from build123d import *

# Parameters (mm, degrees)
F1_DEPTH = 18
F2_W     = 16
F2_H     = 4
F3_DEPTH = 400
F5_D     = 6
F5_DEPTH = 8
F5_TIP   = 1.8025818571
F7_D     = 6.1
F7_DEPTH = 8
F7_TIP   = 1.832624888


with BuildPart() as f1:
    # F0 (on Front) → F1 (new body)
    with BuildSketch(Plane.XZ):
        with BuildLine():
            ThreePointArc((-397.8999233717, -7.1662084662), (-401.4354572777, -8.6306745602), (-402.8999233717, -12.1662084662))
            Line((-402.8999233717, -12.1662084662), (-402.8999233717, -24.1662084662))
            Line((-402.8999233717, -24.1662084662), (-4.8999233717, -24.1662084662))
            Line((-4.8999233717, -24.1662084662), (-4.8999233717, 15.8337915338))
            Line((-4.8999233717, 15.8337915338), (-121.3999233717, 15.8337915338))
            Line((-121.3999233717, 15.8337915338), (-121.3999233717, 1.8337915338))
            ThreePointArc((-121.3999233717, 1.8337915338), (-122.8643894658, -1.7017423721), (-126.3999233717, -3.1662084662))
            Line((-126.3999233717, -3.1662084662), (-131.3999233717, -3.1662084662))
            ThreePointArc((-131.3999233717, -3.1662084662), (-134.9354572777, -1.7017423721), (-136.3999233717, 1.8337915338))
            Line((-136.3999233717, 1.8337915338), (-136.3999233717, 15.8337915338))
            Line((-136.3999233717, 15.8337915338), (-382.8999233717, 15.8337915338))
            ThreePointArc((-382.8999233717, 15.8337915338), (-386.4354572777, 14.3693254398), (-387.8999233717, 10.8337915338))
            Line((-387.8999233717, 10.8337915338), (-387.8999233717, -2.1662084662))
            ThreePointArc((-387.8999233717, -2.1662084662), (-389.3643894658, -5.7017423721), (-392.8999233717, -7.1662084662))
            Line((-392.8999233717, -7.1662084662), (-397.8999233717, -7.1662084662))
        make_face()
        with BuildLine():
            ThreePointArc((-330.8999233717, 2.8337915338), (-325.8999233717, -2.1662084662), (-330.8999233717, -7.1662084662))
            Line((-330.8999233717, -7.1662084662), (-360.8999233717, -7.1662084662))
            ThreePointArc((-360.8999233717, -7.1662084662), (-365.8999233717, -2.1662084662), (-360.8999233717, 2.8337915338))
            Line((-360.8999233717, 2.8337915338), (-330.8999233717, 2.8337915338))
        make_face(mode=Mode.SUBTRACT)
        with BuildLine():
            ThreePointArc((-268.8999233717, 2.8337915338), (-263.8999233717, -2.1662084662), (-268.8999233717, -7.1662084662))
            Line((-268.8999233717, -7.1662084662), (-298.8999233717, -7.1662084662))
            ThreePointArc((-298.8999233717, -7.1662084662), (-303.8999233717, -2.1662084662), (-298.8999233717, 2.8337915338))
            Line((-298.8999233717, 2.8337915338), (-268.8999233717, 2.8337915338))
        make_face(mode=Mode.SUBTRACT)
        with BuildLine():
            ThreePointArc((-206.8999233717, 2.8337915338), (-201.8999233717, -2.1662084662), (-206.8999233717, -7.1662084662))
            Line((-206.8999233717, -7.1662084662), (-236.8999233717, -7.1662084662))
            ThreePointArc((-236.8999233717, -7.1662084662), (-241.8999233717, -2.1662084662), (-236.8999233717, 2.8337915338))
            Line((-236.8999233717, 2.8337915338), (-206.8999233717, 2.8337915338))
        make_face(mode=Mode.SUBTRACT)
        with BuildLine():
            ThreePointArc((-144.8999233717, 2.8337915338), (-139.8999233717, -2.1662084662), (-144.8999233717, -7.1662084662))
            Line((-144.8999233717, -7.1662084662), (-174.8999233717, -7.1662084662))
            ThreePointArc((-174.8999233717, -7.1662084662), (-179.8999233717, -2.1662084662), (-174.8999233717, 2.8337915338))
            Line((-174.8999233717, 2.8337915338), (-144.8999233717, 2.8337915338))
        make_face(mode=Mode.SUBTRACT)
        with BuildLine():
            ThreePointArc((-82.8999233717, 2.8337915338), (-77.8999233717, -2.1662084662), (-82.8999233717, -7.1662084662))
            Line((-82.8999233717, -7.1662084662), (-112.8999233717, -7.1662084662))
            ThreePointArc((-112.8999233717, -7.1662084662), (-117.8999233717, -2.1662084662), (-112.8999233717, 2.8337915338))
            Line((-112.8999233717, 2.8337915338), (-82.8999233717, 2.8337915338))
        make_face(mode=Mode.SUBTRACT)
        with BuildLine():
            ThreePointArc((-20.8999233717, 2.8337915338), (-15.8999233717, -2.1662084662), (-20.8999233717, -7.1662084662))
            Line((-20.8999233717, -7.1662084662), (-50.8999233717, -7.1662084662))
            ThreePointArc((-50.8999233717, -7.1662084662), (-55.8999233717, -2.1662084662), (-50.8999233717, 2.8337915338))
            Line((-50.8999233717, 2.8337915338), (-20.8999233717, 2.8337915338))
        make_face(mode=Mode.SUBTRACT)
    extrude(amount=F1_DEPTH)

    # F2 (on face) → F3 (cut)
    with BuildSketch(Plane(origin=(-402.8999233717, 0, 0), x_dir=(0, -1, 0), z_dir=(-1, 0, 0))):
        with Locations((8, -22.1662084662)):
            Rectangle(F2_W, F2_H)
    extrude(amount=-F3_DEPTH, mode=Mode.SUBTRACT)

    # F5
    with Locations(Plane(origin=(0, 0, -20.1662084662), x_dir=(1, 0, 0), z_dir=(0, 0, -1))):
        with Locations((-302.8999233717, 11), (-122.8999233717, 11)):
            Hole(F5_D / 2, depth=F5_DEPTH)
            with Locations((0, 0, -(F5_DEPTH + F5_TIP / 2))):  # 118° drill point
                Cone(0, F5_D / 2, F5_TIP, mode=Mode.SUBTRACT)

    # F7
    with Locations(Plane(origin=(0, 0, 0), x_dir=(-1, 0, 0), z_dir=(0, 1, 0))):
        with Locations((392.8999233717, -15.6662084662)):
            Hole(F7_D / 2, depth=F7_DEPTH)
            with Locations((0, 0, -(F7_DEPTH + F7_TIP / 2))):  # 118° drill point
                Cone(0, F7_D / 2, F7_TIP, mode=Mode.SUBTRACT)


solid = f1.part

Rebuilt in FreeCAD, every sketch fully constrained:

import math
import FreeCAD as App
import Part
import Sketcher

doc = App.newDocument("Part")
body = doc.addObject("PartDesign::Body", "Body")

# Sketch on XZ plane
sketch1 = body.newObject("Sketcher::SketchObject", "Sketch")
sketch1.AttachmentSupport = (doc.getObject("XZ_Plane"), [""])
sketch1.MapMode = "FlatFace"
sketch1.addGeometry(Part.ArcOfCircle(Part.Circle(App.Vector(-397.9, -12.2, 0), App.Vector(0, 0, 1), 5), math.radians(90), math.radians(180)), False)
sketch1.addGeometry(Part.LineSegment(App.Vector(-402.9, -12.2, 0), App.Vector(-402.9, -24.2, 0)), False)
sketch1.addGeometry(Part.LineSegment(App.Vector(-402.9, -24.2, 0), App.Vector(-4.9, -24.2, 0)), False)
sketch1.addGeometry(Part.LineSegment(App.Vector(-4.9, -24.2, 0), App.Vector(-4.9, 15.8, 0)), False)
sketch1.addGeometry(Part.LineSegment(App.Vector(-4.9, 15.8, 0), App.Vector(-121.4, 15.8, 0)), False)
sketch1.addGeometry(Part.LineSegment(App.Vector(-121.4, 15.8, 0), App.Vector(-121.4, 1.8, 0)), False)
sketch1.addGeometry(Part.ArcOfCircle(Part.Circle(App.Vector(-126.4, 1.8, 0), App.Vector(0, 0, 1), 5), math.radians(-90), math.radians(0)), False)
sketch1.addGeometry(Part.LineSegment(App.Vector(-126.4, -3.2, 0), App.Vector(-131.4, -3.2, 0)), False)
sketch1.addGeometry(Part.ArcOfCircle(Part.Circle(App.Vector(-131.4, 1.8, 0), App.Vector(0, 0, 1), 5), math.radians(180), math.radians(270)), False)
sketch1.addGeometry(Part.LineSegment(App.Vector(-136.4, 1.8, 0), App.Vector(-136.4, 15.8, 0)), False)
sketch1.addGeometry(Part.LineSegment(App.Vector(-136.4, 15.8, 0), App.Vector(-382.9, 15.8, 0)), False)
sketch1.addGeometry(Part.ArcOfCircle(Part.Circle(App.Vector(-382.9, 10.8, 0), App.Vector(0, 0, 1), 5), math.radians(90), math.radians(180)), False)
sketch1.addGeometry(Part.LineSegment(App.Vector(-387.9, 10.8, 0), App.Vector(-387.9, -2.2, 0)), False)
sketch1.addGeometry(Part.ArcOfCircle(Part.Circle(App.Vector(-392.9, -2.2, 0), App.Vector(0, 0, 1), 5), math.radians(-90), math.radians(0)), False)
sketch1.addGeometry(Part.LineSegment(App.Vector(-392.9, -7.2, 0), App.Vector(-397.9, -7.2, 0)), False)
sketch1.addGeometry(Part.LineSegment(App.Vector(-360.9, 2.8, 0), App.Vector(-330.9, 2.8, 0)), False)
sketch1.addGeometry(Part.ArcOfCircle(Part.Circle(App.Vector(-330.9, -2.2, 0), App.Vector(0, 0, 1), 5), math.radians(-90), math.radians(90)), False)
sketch1.addGeometry(Part.LineSegment(App.Vector(-330.9, -7.2, 0), App.Vector(-360.9, -7.2, 0)), False)
sketch1.addGeometry(Part.ArcOfCircle(Part.Circle(App.Vector(-360.9, -2.2, 0), App.Vector(0, 0, 1), 5), math.radians(90), math.radians(270)), False)
sketch1.addGeometry(Part.LineSegment(App.Vector(-298.9, 2.8, 0), App.Vector(-268.9, 2.8, 0)), False)
sketch1.addGeometry(Part.ArcOfCircle(Part.Circle(App.Vector(-268.9, -2.2, 0), App.Vector(0, 0, 1), 5), math.radians(-90), math.radians(90)), False)
sketch1.addGeometry(Part.LineSegment(App.Vector(-268.9, -7.2, 0), App.Vector(-298.9, -7.2, 0)), False)
sketch1.addGeometry(Part.ArcOfCircle(Part.Circle(App.Vector(-298.9, -2.2, 0), App.Vector(0, 0, 1), 5), math.radians(90), math.radians(270)), False)
sketch1.addGeometry(Part.LineSegment(App.Vector(-236.9, 2.8, 0), App.Vector(-206.9, 2.8, 0)), False)
sketch1.addGeometry(Part.ArcOfCircle(Part.Circle(App.Vector(-206.9, -2.2, 0), App.Vector(0, 0, 1), 5), math.radians(-90), math.radians(90)), False)
sketch1.addGeometry(Part.LineSegment(App.Vector(-206.9, -7.2, 0), App.Vector(-236.9, -7.2, 0)), False)
sketch1.addGeometry(Part.ArcOfCircle(Part.Circle(App.Vector(-236.9, -2.2, 0), App.Vector(0, 0, 1), 5), math.radians(90), math.radians(270)), False)
sketch1.addGeometry(Part.LineSegment(App.Vector(-174.9, 2.8, 0), App.Vector(-144.9, 2.8, 0)), False)
sketch1.addGeometry(Part.ArcOfCircle(Part.Circle(App.Vector(-144.9, -2.2, 0), App.Vector(0, 0, 1), 5), math.radians(-90), math.radians(90)), False)
sketch1.addGeometry(Part.LineSegment(App.Vector(-144.9, -7.2, 0), App.Vector(-174.9, -7.2, 0)), False)
sketch1.addGeometry(Part.ArcOfCircle(Part.Circle(App.Vector(-174.9, -2.2, 0), App.Vector(0, 0, 1), 5), math.radians(90), math.radians(270)), False)
sketch1.addGeometry(Part.LineSegment(App.Vector(-112.9, 2.8, 0), App.Vector(-82.9, 2.8, 0)), False)
sketch1.addGeometry(Part.ArcOfCircle(Part.Circle(App.Vector(-82.9, -2.2, 0), App.Vector(0, 0, 1), 5), math.radians(-90), math.radians(90)), False)
sketch1.addGeometry(Part.LineSegment(App.Vector(-82.9, -7.2, 0), App.Vector(-112.9, -7.2, 0)), False)
sketch1.addGeometry(Part.ArcOfCircle(Part.Circle(App.Vector(-112.9, -2.2, 0), App.Vector(0, 0, 1), 5), math.radians(90), math.radians(270)), False)
sketch1.addGeometry(Part.LineSegment(App.Vector(-50.9, 2.8, 0), App.Vector(-20.9, 2.8, 0)), False)
sketch1.addGeometry(Part.ArcOfCircle(Part.Circle(App.Vector(-20.9, -2.2, 0), App.Vector(0, 0, 1), 5), math.radians(-90), math.radians(90)), False)
sketch1.addGeometry(Part.LineSegment(App.Vector(-20.9, -7.2, 0), App.Vector(-50.9, -7.2, 0)), False)
sketch1.addGeometry(Part.ArcOfCircle(Part.Circle(App.Vector(-50.9, -2.2, 0), App.Vector(0, 0, 1), 5), math.radians(90), math.radians(270)), False)
sketch1.addConstraint(Sketcher.Constraint("Tangent", 0, 2, 1, 1))
sketch1.addConstraint(Sketcher.Constraint("Coincident", 1, 2, 2, 1))
sketch1.addConstraint(Sketcher.Constraint("Coincident", 2, 2, 3, 1))
sketch1.addConstraint(Sketcher.Constraint("Coincident", 3, 2, 4, 1))
sketch1.addConstraint(Sketcher.Constraint("Coincident", 4, 2, 5, 1))
sketch1.addConstraint(Sketcher.Constraint("Tangent", 5, 2, 6, 2))
sketch1.addConstraint(Sketcher.Constraint("Tangent", 6, 1, 7, 1))
sketch1.addConstraint(Sketcher.Constraint("Tangent", 7, 2, 8, 2))
sketch1.addConstraint(Sketcher.Constraint("Tangent", 8, 1, 9, 1))
sketch1.addConstraint(Sketcher.Constraint("Coincident", 9, 2, 10, 1))
sketch1.addConstraint(Sketcher.Constraint("Tangent", 10, 2, 11, 1))
sketch1.addConstraint(Sketcher.Constraint("Tangent", 11, 2, 12, 1))
sketch1.addConstraint(Sketcher.Constraint("Tangent", 12, 2, 13, 2))
sketch1.addConstraint(Sketcher.Constraint("Tangent", 13, 1, 14, 1))
sketch1.addConstraint(Sketcher.Constraint("Tangent", 14, 2, 0, 1))
sketch1.addConstraint(Sketcher.Constraint("Tangent", 15, 2, 16, 2))
sketch1.addConstraint(Sketcher.Constraint("Tangent", 16, 1, 17, 1))
sketch1.addConstraint(Sketcher.Constraint("Tangent", 17, 2, 18, 2))
sketch1.addConstraint(Sketcher.Constraint("Tangent", 18, 1, 15, 1))
sketch1.addConstraint(Sketcher.Constraint("Tangent", 19, 2, 20, 2))
sketch1.addConstraint(Sketcher.Constraint("Tangent", 20, 1, 21, 1))
sketch1.addConstraint(Sketcher.Constraint("Tangent", 21, 2, 22, 2))
sketch1.addConstraint(Sketcher.Constraint("Tangent", 22, 1, 19, 1))
sketch1.addConstraint(Sketcher.Constraint("Tangent", 23, 2, 24, 2))
sketch1.addConstraint(Sketcher.Constraint("Tangent", 24, 1, 25, 1))
sketch1.addConstraint(Sketcher.Constraint("Tangent", 25, 2, 26, 2))
sketch1.addConstraint(Sketcher.Constraint("Tangent", 26, 1, 23, 1))
sketch1.addConstraint(Sketcher.Constraint("Tangent", 27, 2, 28, 2))
sketch1.addConstraint(Sketcher.Constraint("Tangent", 28, 1, 29, 1))
sketch1.addConstraint(Sketcher.Constraint("Tangent", 29, 2, 30, 2))
sketch1.addConstraint(Sketcher.Constraint("Tangent", 30, 1, 27, 1))
sketch1.addConstraint(Sketcher.Constraint("Tangent", 31, 2, 32, 2))
sketch1.addConstraint(Sketcher.Constraint("Tangent", 32, 1, 33, 1))
sketch1.addConstraint(Sketcher.Constraint("Tangent", 33, 2, 34, 2))
sketch1.addConstraint(Sketcher.Constraint("Tangent", 34, 1, 31, 1))
sketch1.addConstraint(Sketcher.Constraint("Tangent", 35, 2, 36, 2))
sketch1.addConstraint(Sketcher.Constraint("Tangent", 36, 1, 37, 1))
sketch1.addConstraint(Sketcher.Constraint("Tangent", 37, 2, 38, 2))
sketch1.addConstraint(Sketcher.Constraint("Tangent", 38, 1, 35, 1))
sketch1.addConstraint(Sketcher.Constraint("Vertical", 1))
sketch1.addConstraint(Sketcher.Constraint("Horizontal", 2))
sketch1.addConstraint(Sketcher.Constraint("Vertical", 3))
sketch1.addConstraint(Sketcher.Constraint("Horizontal", 4))
sketch1.addConstraint(Sketcher.Constraint("Vertical", 5))
sketch1.addConstraint(Sketcher.Constraint("Horizontal", 7))
sketch1.addConstraint(Sketcher.Constraint("Vertical", 9))
sketch1.addConstraint(Sketcher.Constraint("Horizontal", 10))
sketch1.addConstraint(Sketcher.Constraint("Vertical", 12))
sketch1.addConstraint(Sketcher.Constraint("Horizontal", 14))
sketch1.addConstraint(Sketcher.Constraint("Horizontal", 15))
sketch1.addConstraint(Sketcher.Constraint("Horizontal", 17))
sketch1.addConstraint(Sketcher.Constraint("Horizontal", 19))
sketch1.addConstraint(Sketcher.Constraint("Horizontal", 21))
sketch1.addConstraint(Sketcher.Constraint("Horizontal", 23))
sketch1.addConstraint(Sketcher.Constraint("Horizontal", 25))
sketch1.addConstraint(Sketcher.Constraint("Horizontal", 27))
sketch1.addConstraint(Sketcher.Constraint("Horizontal", 29))
sketch1.addConstraint(Sketcher.Constraint("Horizontal", 31))
sketch1.addConstraint(Sketcher.Constraint("Horizontal", 33))
sketch1.addConstraint(Sketcher.Constraint("Horizontal", 35))
sketch1.addConstraint(Sketcher.Constraint("Horizontal", 37))
sketch1.addConstraint(Sketcher.Constraint("Equal", 0, 6))
sketch1.addConstraint(Sketcher.Constraint("Equal", 6, 8))
sketch1.addConstraint(Sketcher.Constraint("Equal", 8, 11))
sketch1.addConstraint(Sketcher.Constraint("Equal", 11, 13))
sketch1.addConstraint(Sketcher.Constraint("Equal", 13, 16))
sketch1.addConstraint(Sketcher.Constraint("Equal", 18, 20))
sketch1.addConstraint(Sketcher.Constraint("Equal", 22, 24))
sketch1.addConstraint(Sketcher.Constraint("Equal", 26, 28))
sketch1.addConstraint(Sketcher.Constraint("Equal", 30, 32))
sketch1.addConstraint(Sketcher.Constraint("Equal", 34, 36))
sketch1.addConstraint(Sketcher.Constraint("Horizontal", 13, 3, 16, 3))
sketch1.addConstraint(Sketcher.Constraint("Horizontal", 18, 3, 20, 3))
sketch1.addConstraint(Sketcher.Constraint("Horizontal", 22, 3, 24, 3))
sketch1.addConstraint(Sketcher.Constraint("Horizontal", 26, 3, 28, 3))
sketch1.addConstraint(Sketcher.Constraint("Horizontal", 30, 3, 32, 3))
sketch1.addConstraint(Sketcher.Constraint("Horizontal", 34, 3, 36, 3))
sketch1.addConstraint(Sketcher.Constraint("Horizontal", 4, 2, 9, 2))
sketch1.addConstraint(Sketcher.Constraint("Equal", 7, 14))
sketch1.addConstraint(Sketcher.Constraint("Equal", 17, 19))
sketch1.addConstraint(Sketcher.Constraint("Equal", 21, 23))
sketch1.addConstraint(Sketcher.Constraint("Equal", 25, 27))
sketch1.addConstraint(Sketcher.Constraint("Equal", 29, 31))
sketch1.addConstraint(Sketcher.Constraint("Equal", 33, 35))
sketch1.addConstraint(Sketcher.Constraint("Radius", 0, 5.0))
sketch1.addConstraint(Sketcher.Constraint("DistanceX", 2, 1, 2, 2, 398.0))
sketch1.addConstraint(Sketcher.Constraint("DistanceX", 7, 2, 7, 1, 5.0))
sketch1.addConstraint(Sketcher.Constraint("DistanceX", 15, 1, 15, 2, 30.0))
sketch1.addConstraint(Sketcher.Constraint("DistanceY", 1, 2, 1, 1, 12.0))
sketch1.addConstraint(Sketcher.Constraint("DistanceY", 3, 1, 3, 2, 40.0))
sketch1.addConstraint(Sketcher.Constraint("DistanceY", 5, 2, 5, 1, 14.0))
sketch1.addConstraint(Sketcher.Constraint("DistanceX", 4, 2, 4, 1, 116.5))
sketch1.addConstraint(Sketcher.Constraint("DistanceX", 11, 3, 16, 3, 52.0))
sketch1.addConstraint(Sketcher.Constraint("DistanceX", 16, 3, 20, 3, 62.0))
sketch1.addConstraint(Sketcher.Constraint("DistanceX", 20, 3, 24, 3, 62.0))
sketch1.addConstraint(Sketcher.Constraint("DistanceX", 24, 3, 28, 3, 62.0))
sketch1.addConstraint(Sketcher.Constraint("DistanceX", 28, 3, 32, 3, 62.0))
sketch1.addConstraint(Sketcher.Constraint("DistanceX", 32, 3, 36, 3, 62.0))
sketch1.addConstraint(Sketcher.Constraint("DistanceY", 0, 3, -1, 1, 12.166208))
sketch1.addConstraint(Sketcher.Constraint("DistanceX", 0, 3, -1, 1, 397.899923))
pad1 = body.newObject("PartDesign::Pad", "Pad")
pad1.Profile = sketch1
pad1.Length = 18

# Sketch on YZ plane
sketch2 = body.newObject("Sketcher::SketchObject", "Sketch001")
sketch2.AttachmentSupport = (doc.getObject("YZ_Plane"), [""])
sketch2.MapMode = "FlatFace"
sketch2.AttachmentOffset = App.Placement(App.Vector(0, 0, -402.899923), App.Rotation())
sketch2.addGeometry(Part.LineSegment(App.Vector(0, -20.2, 0), App.Vector(0, -24.2, 0)), False)
sketch2.addGeometry(Part.LineSegment(App.Vector(0, -24.2, 0), App.Vector(-16, -24.2, 0)), False)
sketch2.addGeometry(Part.LineSegment(App.Vector(-16, -24.2, 0), App.Vector(-16, -20.2, 0)), False)
sketch2.addGeometry(Part.LineSegment(App.Vector(-16, -20.2, 0), App.Vector(0, -20.2, 0)), False)
sketch2.addConstraint(Sketcher.Constraint("Coincident", 0, 2, 1, 1))
sketch2.addConstraint(Sketcher.Constraint("Coincident", 1, 2, 2, 1))
sketch2.addConstraint(Sketcher.Constraint("Coincident", 2, 2, 3, 1))
sketch2.addConstraint(Sketcher.Constraint("Coincident", 3, 2, 0, 1))
sketch2.addConstraint(Sketcher.Constraint("Vertical", 0))
sketch2.addConstraint(Sketcher.Constraint("Horizontal", 1))
sketch2.addConstraint(Sketcher.Constraint("Vertical", 2))
sketch2.addConstraint(Sketcher.Constraint("Horizontal", 3))
sketch2.addConstraint(Sketcher.Constraint("PointOnObject", 0, 2, -2))
sketch2.addConstraint(Sketcher.Constraint("DistanceX", 1, 2, 1, 1, 16.0))
sketch2.addConstraint(Sketcher.Constraint("DistanceY", 0, 2, 0, 1, 4.0))
sketch2.addConstraint(Sketcher.Constraint("DistanceY", 0, 2, -1, 1, 24.166208))
pocket1 = body.newObject("PartDesign::Pocket", "Pocket")
pocket1.Profile = sketch2
pocket1.Length = 400
pocket1.Reversed = True

# Sketch on XY plane
sketch3 = body.newObject("Sketcher::SketchObject", "Sketch002")
sketch3.AttachmentSupport = (doc.getObject("XY_Plane"), [""])
sketch3.MapMode = "FlatFace"
sketch3.AttachmentOffset = App.Placement(App.Vector(0, 0, -20.166208), App.Rotation())
sketch3.addGeometry(Part.Circle(App.Vector(-302.899923, -11, 0), App.Vector(0, 0, 1), 3), False)
sketch3.addGeometry(Part.Circle(App.Vector(-122.899923, -11, 0), App.Vector(0, 0, 1), 3), False)
sketch3.addConstraint(Sketcher.Constraint("Equal", 0, 1))
sketch3.addConstraint(Sketcher.Constraint("Horizontal", 0, 3, 1, 3))
sketch3.addConstraint(Sketcher.Constraint("Diameter", 0, 6.0))
sketch3.addConstraint(Sketcher.Constraint("DistanceY", 0, 3, -1, 1, 11.0))
sketch3.addConstraint(Sketcher.Constraint("DistanceX", 0, 3, 1, 3, 180.0))
sketch3.addConstraint(Sketcher.Constraint("DistanceX", 0, 3, -1, 1, 302.899923))
doc.recompute()
hole = body.newObject("PartDesign::Hole", "Hole")
hole.Profile = sketch3
hole.ThreadType = "None"
hole.Diameter = 6
hole.DepthType = "Dimension"
hole.Depth = 8
hole.DrillPoint = "Angled"
hole.DrillPointAngle = 118
hole.Reversed = True

# Sketch on XZ plane
sketch4 = body.newObject("Sketcher::SketchObject", "Sketch003")
sketch4.AttachmentSupport = (doc.getObject("XZ_Plane"), [""])
sketch4.MapMode = "FlatFace"
sketch4.addGeometry(Part.Circle(App.Vector(-392.899923, -15.666208, 0), App.Vector(0, 0, 1), 3.05), False)
sketch4.addConstraint(Sketcher.Constraint("Diameter", 0, 6.1))
sketch4.addConstraint(Sketcher.Constraint("DistanceY", 0, 3, -1, 1, 15.666208))
sketch4.addConstraint(Sketcher.Constraint("DistanceX", 0, 3, -1, 1, 392.899923))
doc.recompute()
hole2 = body.newObject("PartDesign::Hole", "Hole001")
hole2.Profile = sketch4
hole2.ThreadType = "None"
hole2.Diameter = 6.1
hole2.DepthType = "Dimension"
hole2.Depth = 8
hole2.DrillPoint = "Angled"
hole2.DrillPointAngle = 118
hole2.Reversed = True

doc.recompute()
